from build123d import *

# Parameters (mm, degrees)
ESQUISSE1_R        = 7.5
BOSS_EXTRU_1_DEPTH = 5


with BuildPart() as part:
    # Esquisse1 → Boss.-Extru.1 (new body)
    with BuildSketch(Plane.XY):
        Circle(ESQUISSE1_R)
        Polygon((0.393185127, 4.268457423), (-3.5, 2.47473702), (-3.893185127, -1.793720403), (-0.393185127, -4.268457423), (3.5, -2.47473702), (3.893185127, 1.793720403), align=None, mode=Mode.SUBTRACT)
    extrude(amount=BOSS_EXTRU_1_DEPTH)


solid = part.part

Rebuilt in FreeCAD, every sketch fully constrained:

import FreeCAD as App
import Part
import Sketcher

V = App.Vector


def add_polygon(sketch, points):
    """Adds a closed chain of lines whose ends are joined by coincident constraints."""
    first, n = sketch.GeometryCount, len(points)
    for a, b in zip(points, points[1:] + points[:1]):
        sketch.addGeometry(Part.LineSegment(App.Vector(*a, 0), App.Vector(*b, 0)), False)
    for i in range(n):
        sketch.addConstraint(Sketcher.Constraint("Coincident", first + i, 2, first + (i + 1) % n, 1))

doc = App.newDocument("Part")
body = doc.addObject("PartDesign::Body", "Body")

sketch1 = body.newObject("Sketcher::SketchObject", "Sketch")
sketch1.AttachmentSupport = (doc.getObject("XY_Plane"), [""])
sketch1.MapMode = "FlatFace"
sketch1.addGeometry(Part.Circle(V(0, 0, 0), V(0, 0, 1), 7.5), False)
add_polygon(sketch1, [(-3.5, 2.5), (0.4, 4.3), (3.9, 1.8), (3.5, -2.5), (-0.4, -4.3), (-3.9, -1.8)])
sketch1.addConstraint([
    Sketcher.Constraint("Coincident", 0, 3, -1, 1),
    Sketcher.Constraint("Symmetric", 1, 2, 4, 2, -1, 1),
    Sketcher.Constraint("Symmetric", 2, 2, 5, 2, -1, 1),
    Sketcher.Constraint("Symmetric", 3, 2, 6, 2, -1, 1),
    Sketcher.Constraint("Equal", 1, 2),
    Sketcher.Constraint("Equal", 2, 3),
    Sketcher.Constraint("Diameter", 0, 15.0),
    Sketcher.Constraint("DistanceX", -1, 1, 3, 2, 3.5),
    Sketcher.Constraint("DistanceX", 1, 2, 2, 2, 3.5),
    Sketcher.Constraint("Distance", 1, 4.286528),
    Sketcher.Constraint("DistanceY", -1, 1, 2, 2, 1.79372),
])
pad1 = body.newObject("PartDesign::Pad", "Pad")
pad1.Profile = sketch1
pad1.Length = 5

doc.recompute()
